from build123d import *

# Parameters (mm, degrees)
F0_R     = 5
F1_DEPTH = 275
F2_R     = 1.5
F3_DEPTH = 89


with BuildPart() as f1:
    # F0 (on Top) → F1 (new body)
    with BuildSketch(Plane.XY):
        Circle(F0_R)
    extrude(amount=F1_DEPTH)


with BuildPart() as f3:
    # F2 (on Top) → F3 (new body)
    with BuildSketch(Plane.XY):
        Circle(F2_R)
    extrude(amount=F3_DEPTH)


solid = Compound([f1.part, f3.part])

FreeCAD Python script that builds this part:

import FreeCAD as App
import Part
import Sketcher
Q = App.Units.Quantity

doc = App.newDocument("Part")
body = doc.addObject("PartDesign::Body", "Body")

# Sketch on XY plane
sketch1 = body.newObject("Sketcher::SketchObject", "Sketch")
sketch1.AttachmentSupport = (doc.getObject("XY_Plane"), [""])
sketch1.MapMode = "FlatFace"
sketch1.addGeometry(Part.Circle(App.Vector(0, 0, 0), App.Vector(0, 0, 1), 5), False)
sketch1.addConstraint([
    Sketcher.Constraint("Coincident", 0, 3, -1, 1),
    Sketcher.Constraint("Diameter", 0, Q("10 mm")),
])
pad1 = body.newObject("PartDesign::Pad", "Pad")
pad1.Profile = sketch1
pad1.Length = 275
body2 = doc.addObject("PartDesign::Body", "Body001")

# Sketch on XY plane
sketch2 = body2.newObject("Sketcher::SketchObject", "Sketch001")
sketch2.AttachmentSupport = (doc.getObject("XY_Plane001"), [""])
sketch2.MapMode = "FlatFace"
sketch2.addGeometry(Part.Circle(App.Vector(0, 0, 0), App.Vector(0, 0, 1), 1.5), False)
sketch2.addConstraint([
    Sketcher.Constraint("Coincident", 0, 3, -1, 1),
    Sketcher.Constraint("Diameter", 0, Q("3 mm")),
])
pad2 = body2.newObject("PartDesign::Pad", "Pad001")
pad2.Profile = sketch2
pad2.Length = 89

doc.recompute()
